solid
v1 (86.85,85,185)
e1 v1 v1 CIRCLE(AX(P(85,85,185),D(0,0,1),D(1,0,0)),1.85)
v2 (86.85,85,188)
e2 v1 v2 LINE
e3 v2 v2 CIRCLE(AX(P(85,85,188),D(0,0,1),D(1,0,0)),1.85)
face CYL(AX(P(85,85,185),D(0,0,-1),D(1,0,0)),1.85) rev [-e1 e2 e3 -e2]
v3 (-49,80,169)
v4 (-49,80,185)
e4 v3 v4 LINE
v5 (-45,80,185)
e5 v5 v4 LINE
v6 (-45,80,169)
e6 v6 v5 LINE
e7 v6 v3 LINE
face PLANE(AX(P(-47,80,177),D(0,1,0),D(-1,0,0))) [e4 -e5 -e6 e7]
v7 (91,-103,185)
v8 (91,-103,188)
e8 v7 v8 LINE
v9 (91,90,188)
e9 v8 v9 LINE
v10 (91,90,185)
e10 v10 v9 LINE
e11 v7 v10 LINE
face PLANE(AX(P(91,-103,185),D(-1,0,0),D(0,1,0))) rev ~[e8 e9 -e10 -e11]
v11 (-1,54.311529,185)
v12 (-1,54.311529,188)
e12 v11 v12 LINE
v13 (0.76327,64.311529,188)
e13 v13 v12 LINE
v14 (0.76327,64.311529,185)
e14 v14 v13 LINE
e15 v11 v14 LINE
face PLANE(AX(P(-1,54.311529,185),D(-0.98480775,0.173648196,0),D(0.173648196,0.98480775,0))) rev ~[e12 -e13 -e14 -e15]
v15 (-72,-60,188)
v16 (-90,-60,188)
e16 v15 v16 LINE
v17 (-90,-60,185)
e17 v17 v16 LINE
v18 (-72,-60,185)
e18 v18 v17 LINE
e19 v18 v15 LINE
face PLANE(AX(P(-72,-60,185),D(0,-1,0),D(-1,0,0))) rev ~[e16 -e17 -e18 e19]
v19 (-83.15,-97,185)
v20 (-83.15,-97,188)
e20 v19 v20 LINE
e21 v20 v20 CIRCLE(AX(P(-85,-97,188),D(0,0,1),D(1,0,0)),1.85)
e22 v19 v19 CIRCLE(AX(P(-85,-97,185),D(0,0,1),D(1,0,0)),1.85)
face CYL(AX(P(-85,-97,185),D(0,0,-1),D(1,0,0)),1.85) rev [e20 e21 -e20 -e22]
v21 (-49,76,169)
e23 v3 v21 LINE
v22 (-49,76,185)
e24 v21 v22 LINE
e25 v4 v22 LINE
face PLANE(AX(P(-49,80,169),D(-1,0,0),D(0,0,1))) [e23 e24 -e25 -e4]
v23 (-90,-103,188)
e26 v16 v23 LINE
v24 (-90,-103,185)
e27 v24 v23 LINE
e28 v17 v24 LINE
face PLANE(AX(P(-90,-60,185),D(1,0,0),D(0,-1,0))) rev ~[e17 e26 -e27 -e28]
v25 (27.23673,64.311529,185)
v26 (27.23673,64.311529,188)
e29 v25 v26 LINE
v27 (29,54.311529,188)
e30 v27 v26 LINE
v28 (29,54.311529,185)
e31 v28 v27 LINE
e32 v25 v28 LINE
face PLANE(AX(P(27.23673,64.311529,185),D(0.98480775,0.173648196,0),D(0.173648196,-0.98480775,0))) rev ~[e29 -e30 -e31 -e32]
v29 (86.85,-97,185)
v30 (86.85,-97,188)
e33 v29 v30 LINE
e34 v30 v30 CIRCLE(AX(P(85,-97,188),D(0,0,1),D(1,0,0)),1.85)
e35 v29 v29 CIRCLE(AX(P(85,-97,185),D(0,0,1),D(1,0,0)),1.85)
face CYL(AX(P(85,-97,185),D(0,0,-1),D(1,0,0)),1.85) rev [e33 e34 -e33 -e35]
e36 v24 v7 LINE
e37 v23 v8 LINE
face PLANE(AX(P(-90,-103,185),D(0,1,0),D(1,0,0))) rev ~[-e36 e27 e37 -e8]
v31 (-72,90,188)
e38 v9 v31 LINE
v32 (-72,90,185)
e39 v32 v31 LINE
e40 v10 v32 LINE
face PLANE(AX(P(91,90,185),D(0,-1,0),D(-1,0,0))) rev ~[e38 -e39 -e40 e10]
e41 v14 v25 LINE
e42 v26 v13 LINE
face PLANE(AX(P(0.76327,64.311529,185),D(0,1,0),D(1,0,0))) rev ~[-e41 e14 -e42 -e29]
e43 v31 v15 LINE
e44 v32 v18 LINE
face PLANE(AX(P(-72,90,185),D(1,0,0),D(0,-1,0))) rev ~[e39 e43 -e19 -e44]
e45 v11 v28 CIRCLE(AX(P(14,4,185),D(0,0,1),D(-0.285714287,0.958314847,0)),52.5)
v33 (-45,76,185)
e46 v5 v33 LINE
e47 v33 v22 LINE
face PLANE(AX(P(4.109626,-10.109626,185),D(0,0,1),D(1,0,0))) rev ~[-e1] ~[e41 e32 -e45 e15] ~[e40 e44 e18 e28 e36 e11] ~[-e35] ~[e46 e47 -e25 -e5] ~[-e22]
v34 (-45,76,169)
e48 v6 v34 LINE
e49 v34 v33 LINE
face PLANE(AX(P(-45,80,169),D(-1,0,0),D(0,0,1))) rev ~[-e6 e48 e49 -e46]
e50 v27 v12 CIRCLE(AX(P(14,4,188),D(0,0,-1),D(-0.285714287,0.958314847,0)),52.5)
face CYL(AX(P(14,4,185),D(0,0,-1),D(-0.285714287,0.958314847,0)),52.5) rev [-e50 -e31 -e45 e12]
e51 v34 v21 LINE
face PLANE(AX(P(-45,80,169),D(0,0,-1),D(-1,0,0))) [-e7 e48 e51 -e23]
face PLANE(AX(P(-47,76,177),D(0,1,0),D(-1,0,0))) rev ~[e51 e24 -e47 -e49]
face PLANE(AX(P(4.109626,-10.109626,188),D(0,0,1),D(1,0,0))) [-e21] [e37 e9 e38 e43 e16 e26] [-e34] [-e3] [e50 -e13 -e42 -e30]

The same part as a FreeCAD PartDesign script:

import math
import FreeCAD as App
import Part
import Sketcher
Q = App.Units.Quantity

doc = App.newDocument("Part")
params = doc.addObject("Spreadsheet::Sheet", "Params")
for row, (alias, value) in enumerate([
    ("sketch1_diameter", "3.7 mm"),
    ("sketch1_width", "163 mm"),
    ("sketch1_width2", "18 mm"),
    ("sketch1_height", "150 mm"),
    ("sketch1_height2", "43 mm"),
    ("pad1_length", "3 mm"),
    ("sketch2_radius", "52.5 mm"),
    ("sketch3_width", "4 mm"),
    ("sketch3_height", "16 mm"),
    ("pad2_length", "4 mm"),
], start=1):
    params.set(f"A{row}", alias)
    params.set(f"B{row}", "=" + value)
    params.setAlias(f"B{row}", alias)

body = doc.addObject("PartDesign::Body", "Body")

# Sketch on XY plane
sketch1 = body.newObject("Sketcher::SketchObject", "Sketch")
sketch1.AttachmentSupport = (doc.getObject("XY_Plane"), [""])
sketch1.MapMode = "FlatFace"
sketch1.addGeometry(Part.LineSegment(App.Vector(91, 90, 0), App.Vector(-72, 90, 0)), False)
sketch1.addGeometry(Part.LineSegment(App.Vector(-72, 90, 0), App.Vector(-72, -60, 0)), False)
sketch1.addGeometry(Part.LineSegment(App.Vector(-72, -60, 0), App.Vector(-90, -60, 0)), False)
sketch1.addGeometry(Part.LineSegment(App.Vector(-90, -60, 0), App.Vector(-90, -103, 0)), False)
sketch1.addGeometry(Part.LineSegment(App.Vector(-90, -103, 0), App.Vector(91, -103, 0)), False)
sketch1.addGeometry(Part.LineSegment(App.Vector(91, -103, 0), App.Vector(91, 90, 0)), False)
sketch1.addGeometry(Part.Circle(App.Vector(-85, -97, 0), App.Vector(0, 0, 1), 1.85), False)
sketch1.addGeometry(Part.Circle(App.Vector(85, -97, 0), App.Vector(0, 0, 1), 1.85), False)
sketch1.addGeometry(Part.Circle(App.Vector(85, 85, 0), App.Vector(0, 0, 1), 1.85), False)
sketch1.addConstraint(Sketcher.Constraint("Coincident", 0, 2, 1, 1))
sketch1.addConstraint(Sketcher.Constraint("Coincident", 1, 2, 2, 1))
sketch1.addConstraint(Sketcher.Constraint("Coincident", 2, 2, 3, 1))
sketch1.addConstraint(Sketcher.Constraint("Coincident", 3, 2, 4, 1))
sketch1.addConstraint(Sketcher.Constraint("Coincident", 4, 2, 5, 1))
sketch1.addConstraint(Sketcher.Constraint("Coincident", 5, 2, 0, 1))
sketch1.addConstraint(Sketcher.Constraint("Horizontal", 0))
sketch1.addConstraint(Sketcher.Constraint("Vertical", 1))
sketch1.addConstraint(Sketcher.Constraint("Horizontal", 2))
sketch1.addConstraint(Sketcher.Constraint("Vertical", 3))
sketch1.addConstraint(Sketcher.Constraint("Horizontal", 4))
sketch1.addConstraint(Sketcher.Constraint("Vertical", 5))
sketch1.addConstraint(Sketcher.Constraint("Equal", 6, 7))
sketch1.addConstraint(Sketcher.Constraint("Equal", 7, 8))
sketch1.addConstraint(Sketcher.Constraint("Symmetric", 6, 3, 7, 3, -2))
sketch1.addConstraint(Sketcher.Constraint("Vertical", 7, 3, 8, 3))
sketch1.addConstraint(Sketcher.Constraint("Diameter", 6, 3.7))
sketch1.addConstraint(Sketcher.Constraint("DistanceX", 0, 2, 0, 1, 163.0))
sketch1.addConstraint(Sketcher.Constraint("DistanceX", 2, 2, 2, 1, 18.0))
sketch1.addConstraint(Sketcher.Constraint("DistanceY", 1, 2, 1, 1, 150.0))
sketch1.addConstraint(Sketcher.Constraint("DistanceY", 3, 2, 3, 1, 43.0))
sketch1.addConstraint(Sketcher.Constraint("DistanceX", 6, 3, -1, 1, 85.0))
sketch1.addConstraint(Sketcher.Constraint("DistanceY", 6, 3, -1, 1, 97.0))
sketch1.addConstraint(Sketcher.Constraint("DistanceY", -1, 1, 8, 3, 85.0))
sketch1.addConstraint(Sketcher.Constraint("DistanceX", 0, 2, -1, 1, 72.0))
sketch1.addConstraint(Sketcher.Constraint("DistanceY", -1, 1, 0, 2, 90.0))
sketch1.setExpression("Constraints[16]", "Params.sketch1_diameter")
sketch1.setExpression("Constraints[17]", "Params.sketch1_width")
sketch1.setExpression("Constraints[18]", "Params.sketch1_width2")
sketch1.setExpression("Constraints[19]", "Params.sketch1_height")
sketch1.setExpression("Constraints[20]", "Params.sketch1_height2")
pad1 = body.newObject("PartDesign::Pad", "Pad")
pad1.Profile = sketch1
pad1.setExpression("Length", "Params.pad1_length")

# Sketch on XY plane
sketch2 = body.newObject("Sketcher::SketchObject", "Sketch001")
sketch2.AttachmentSupport = (doc.getObject("XY_Plane"), [""])
sketch2.MapMode = "FlatFace"
sketch2.addGeometry(Part.ArcOfCircle(Part.Circle(App.Vector(14, 4, 0), App.Vector(0, 0, 1), 52.5), math.radians(106.60155), math.radians(433.39845)), False)
sketch2.addGeometry(Part.LineSegment(App.Vector(29, 54.311529, 0), App.Vector(27.23673, 64.311529, 0)), False)
sketch2.addGeometry(Part.LineSegment(App.Vector(27.23673, 64.311529, 0), App.Vector(0.76327, 64.311529, 0)), False)
sketch2.addGeometry(Part.LineSegment(App.Vector(0.76327, 64.311529, 0), App.Vector(-1, 54.311529, 0)), False)
sketch2.addConstraint(Sketcher.Constraint("Coincident", 0, 2, 1, 1))
sketch2.addConstraint(Sketcher.Constraint("Coincident", 1, 2, 2, 1))
sketch2.addConstraint(Sketcher.Constraint("Coincident", 2, 2, 3, 1))
sketch2.addConstraint(Sketcher.Constraint("Coincident", 3, 2, 0, 1))
sketch2.addConstraint(Sketcher.Constraint("Horizontal", 2))
sketch2.addConstraint(Sketcher.Constraint("Horizontal", 0, 2, 3, 2))
sketch2.addConstraint(Sketcher.Constraint("Equal", 1, 3))
sketch2.addConstraint(Sketcher.Constraint("Radius", 0, 52.5))
sketch2.addConstraint(Sketcher.Constraint("Angle", 1, Q("100.000001 deg")))
sketch2.addConstraint(Sketcher.Constraint("DistanceX", -1, 1, 0, 3, 14.0))
sketch2.addConstraint(Sketcher.Constraint("DistanceY", -1, 1, 0, 3, 4.0))
sketch2.addConstraint(Sketcher.Constraint("DistanceX", -1, 1, 0, 2, 29.0))
sketch2.addConstraint(Sketcher.Constraint("DistanceY", 0, 2, 1, 2, 10.0))
sketch2.setExpression("Constraints[7]", "Params.sketch2_radius")
pocket1 = body.newObject("PartDesign::Pocket", "Pocket")
pocket1.Profile = sketch2
pocket1.Type = "ThroughAll"
pocket1.Midplane = True

# Sketch on XZ plane
sketch3 = body.newObject("Sketcher::SketchObject", "Sketch002")
sketch3.AttachmentSupport = (doc.getObject("XZ_Plane"), [""])
sketch3.MapMode = "FlatFace"
sketch3.AttachmentOffset = App.Placement(App.Vector(0, 0, -80), App.Rotation())
sketch3.addGeometry(Part.LineSegment(App.Vector(-45, 0, 0), App.Vector(-45, -16, 0)), False)
sketch3.addGeometry(Part.LineSegment(App.Vector(-45, -16, 0), App.Vector(-49, -16, 0)), False)
sketch3.addGeometry(Part.LineSegment(App.Vector(-49, -16, 0), App.Vector(-49, 0, 0)), False)
sketch3.addGeometry(Part.LineSegment(App.Vector(-49, 0, 0), App.Vector(-45, 0, 0)), False)
sketch3.addConstraint(Sketcher.Constraint("Coincident", 0, 2, 1, 1))
sketch3.addConstraint(Sketcher.Constraint("Coincident", 1, 2, 2, 1))
sketch3.addConstraint(Sketcher.Constraint("Coincident", 2, 2, 3, 1))
sketch3.addConstraint(Sketcher.Constraint("Coincident", 3, 2, 0, 1))
sketch3.addConstraint(Sketcher.Constraint("Vertical", 0))
sketch3.addConstraint(Sketcher.Constraint("Horizontal", 1))
sketch3.addConstraint(Sketcher.Constraint("Vertical", 2))
sketch3.addConstraint(Sketcher.Constraint("Horizontal", 3))
sketch3.addConstraint(Sketcher.Constraint("PointOnObject", 2, 2, -1))
sketch3.addConstraint(Sketcher.Constraint("DistanceX", 1, 2, 1, 1, 4.0))
sketch3.addConstraint(Sketcher.Constraint("DistanceY", 0, 2, 0, 1, 16.0))
sketch3.addConstraint(Sketcher.Constraint("DistanceX", 0, 2, -1, 1, 45.0))
sketch3.setExpression("Constraints[9]", "Params.sketch3_width")
sketch3.setExpression("Constraints[10]", "Params.sketch3_height")
pad2 = body.newObject("PartDesign::Pad", "Pad001")
pad2.Profile = sketch3
pad2.setExpression("Length", "Params.pad2_length")
body2 = doc.addObject("PartDesign::Body", "Body001")
doc.recompute()

body.Placement = App.Placement(App.Vector(0, 0, 185), App.Rotation(App.Vector(0, 0, 1), 0))
boolean = body2.newObject("PartDesign::Boolean", "Boolean")
boolean.Type = "Fuse"
boolean.addObjects([body])

doc.recompute()
